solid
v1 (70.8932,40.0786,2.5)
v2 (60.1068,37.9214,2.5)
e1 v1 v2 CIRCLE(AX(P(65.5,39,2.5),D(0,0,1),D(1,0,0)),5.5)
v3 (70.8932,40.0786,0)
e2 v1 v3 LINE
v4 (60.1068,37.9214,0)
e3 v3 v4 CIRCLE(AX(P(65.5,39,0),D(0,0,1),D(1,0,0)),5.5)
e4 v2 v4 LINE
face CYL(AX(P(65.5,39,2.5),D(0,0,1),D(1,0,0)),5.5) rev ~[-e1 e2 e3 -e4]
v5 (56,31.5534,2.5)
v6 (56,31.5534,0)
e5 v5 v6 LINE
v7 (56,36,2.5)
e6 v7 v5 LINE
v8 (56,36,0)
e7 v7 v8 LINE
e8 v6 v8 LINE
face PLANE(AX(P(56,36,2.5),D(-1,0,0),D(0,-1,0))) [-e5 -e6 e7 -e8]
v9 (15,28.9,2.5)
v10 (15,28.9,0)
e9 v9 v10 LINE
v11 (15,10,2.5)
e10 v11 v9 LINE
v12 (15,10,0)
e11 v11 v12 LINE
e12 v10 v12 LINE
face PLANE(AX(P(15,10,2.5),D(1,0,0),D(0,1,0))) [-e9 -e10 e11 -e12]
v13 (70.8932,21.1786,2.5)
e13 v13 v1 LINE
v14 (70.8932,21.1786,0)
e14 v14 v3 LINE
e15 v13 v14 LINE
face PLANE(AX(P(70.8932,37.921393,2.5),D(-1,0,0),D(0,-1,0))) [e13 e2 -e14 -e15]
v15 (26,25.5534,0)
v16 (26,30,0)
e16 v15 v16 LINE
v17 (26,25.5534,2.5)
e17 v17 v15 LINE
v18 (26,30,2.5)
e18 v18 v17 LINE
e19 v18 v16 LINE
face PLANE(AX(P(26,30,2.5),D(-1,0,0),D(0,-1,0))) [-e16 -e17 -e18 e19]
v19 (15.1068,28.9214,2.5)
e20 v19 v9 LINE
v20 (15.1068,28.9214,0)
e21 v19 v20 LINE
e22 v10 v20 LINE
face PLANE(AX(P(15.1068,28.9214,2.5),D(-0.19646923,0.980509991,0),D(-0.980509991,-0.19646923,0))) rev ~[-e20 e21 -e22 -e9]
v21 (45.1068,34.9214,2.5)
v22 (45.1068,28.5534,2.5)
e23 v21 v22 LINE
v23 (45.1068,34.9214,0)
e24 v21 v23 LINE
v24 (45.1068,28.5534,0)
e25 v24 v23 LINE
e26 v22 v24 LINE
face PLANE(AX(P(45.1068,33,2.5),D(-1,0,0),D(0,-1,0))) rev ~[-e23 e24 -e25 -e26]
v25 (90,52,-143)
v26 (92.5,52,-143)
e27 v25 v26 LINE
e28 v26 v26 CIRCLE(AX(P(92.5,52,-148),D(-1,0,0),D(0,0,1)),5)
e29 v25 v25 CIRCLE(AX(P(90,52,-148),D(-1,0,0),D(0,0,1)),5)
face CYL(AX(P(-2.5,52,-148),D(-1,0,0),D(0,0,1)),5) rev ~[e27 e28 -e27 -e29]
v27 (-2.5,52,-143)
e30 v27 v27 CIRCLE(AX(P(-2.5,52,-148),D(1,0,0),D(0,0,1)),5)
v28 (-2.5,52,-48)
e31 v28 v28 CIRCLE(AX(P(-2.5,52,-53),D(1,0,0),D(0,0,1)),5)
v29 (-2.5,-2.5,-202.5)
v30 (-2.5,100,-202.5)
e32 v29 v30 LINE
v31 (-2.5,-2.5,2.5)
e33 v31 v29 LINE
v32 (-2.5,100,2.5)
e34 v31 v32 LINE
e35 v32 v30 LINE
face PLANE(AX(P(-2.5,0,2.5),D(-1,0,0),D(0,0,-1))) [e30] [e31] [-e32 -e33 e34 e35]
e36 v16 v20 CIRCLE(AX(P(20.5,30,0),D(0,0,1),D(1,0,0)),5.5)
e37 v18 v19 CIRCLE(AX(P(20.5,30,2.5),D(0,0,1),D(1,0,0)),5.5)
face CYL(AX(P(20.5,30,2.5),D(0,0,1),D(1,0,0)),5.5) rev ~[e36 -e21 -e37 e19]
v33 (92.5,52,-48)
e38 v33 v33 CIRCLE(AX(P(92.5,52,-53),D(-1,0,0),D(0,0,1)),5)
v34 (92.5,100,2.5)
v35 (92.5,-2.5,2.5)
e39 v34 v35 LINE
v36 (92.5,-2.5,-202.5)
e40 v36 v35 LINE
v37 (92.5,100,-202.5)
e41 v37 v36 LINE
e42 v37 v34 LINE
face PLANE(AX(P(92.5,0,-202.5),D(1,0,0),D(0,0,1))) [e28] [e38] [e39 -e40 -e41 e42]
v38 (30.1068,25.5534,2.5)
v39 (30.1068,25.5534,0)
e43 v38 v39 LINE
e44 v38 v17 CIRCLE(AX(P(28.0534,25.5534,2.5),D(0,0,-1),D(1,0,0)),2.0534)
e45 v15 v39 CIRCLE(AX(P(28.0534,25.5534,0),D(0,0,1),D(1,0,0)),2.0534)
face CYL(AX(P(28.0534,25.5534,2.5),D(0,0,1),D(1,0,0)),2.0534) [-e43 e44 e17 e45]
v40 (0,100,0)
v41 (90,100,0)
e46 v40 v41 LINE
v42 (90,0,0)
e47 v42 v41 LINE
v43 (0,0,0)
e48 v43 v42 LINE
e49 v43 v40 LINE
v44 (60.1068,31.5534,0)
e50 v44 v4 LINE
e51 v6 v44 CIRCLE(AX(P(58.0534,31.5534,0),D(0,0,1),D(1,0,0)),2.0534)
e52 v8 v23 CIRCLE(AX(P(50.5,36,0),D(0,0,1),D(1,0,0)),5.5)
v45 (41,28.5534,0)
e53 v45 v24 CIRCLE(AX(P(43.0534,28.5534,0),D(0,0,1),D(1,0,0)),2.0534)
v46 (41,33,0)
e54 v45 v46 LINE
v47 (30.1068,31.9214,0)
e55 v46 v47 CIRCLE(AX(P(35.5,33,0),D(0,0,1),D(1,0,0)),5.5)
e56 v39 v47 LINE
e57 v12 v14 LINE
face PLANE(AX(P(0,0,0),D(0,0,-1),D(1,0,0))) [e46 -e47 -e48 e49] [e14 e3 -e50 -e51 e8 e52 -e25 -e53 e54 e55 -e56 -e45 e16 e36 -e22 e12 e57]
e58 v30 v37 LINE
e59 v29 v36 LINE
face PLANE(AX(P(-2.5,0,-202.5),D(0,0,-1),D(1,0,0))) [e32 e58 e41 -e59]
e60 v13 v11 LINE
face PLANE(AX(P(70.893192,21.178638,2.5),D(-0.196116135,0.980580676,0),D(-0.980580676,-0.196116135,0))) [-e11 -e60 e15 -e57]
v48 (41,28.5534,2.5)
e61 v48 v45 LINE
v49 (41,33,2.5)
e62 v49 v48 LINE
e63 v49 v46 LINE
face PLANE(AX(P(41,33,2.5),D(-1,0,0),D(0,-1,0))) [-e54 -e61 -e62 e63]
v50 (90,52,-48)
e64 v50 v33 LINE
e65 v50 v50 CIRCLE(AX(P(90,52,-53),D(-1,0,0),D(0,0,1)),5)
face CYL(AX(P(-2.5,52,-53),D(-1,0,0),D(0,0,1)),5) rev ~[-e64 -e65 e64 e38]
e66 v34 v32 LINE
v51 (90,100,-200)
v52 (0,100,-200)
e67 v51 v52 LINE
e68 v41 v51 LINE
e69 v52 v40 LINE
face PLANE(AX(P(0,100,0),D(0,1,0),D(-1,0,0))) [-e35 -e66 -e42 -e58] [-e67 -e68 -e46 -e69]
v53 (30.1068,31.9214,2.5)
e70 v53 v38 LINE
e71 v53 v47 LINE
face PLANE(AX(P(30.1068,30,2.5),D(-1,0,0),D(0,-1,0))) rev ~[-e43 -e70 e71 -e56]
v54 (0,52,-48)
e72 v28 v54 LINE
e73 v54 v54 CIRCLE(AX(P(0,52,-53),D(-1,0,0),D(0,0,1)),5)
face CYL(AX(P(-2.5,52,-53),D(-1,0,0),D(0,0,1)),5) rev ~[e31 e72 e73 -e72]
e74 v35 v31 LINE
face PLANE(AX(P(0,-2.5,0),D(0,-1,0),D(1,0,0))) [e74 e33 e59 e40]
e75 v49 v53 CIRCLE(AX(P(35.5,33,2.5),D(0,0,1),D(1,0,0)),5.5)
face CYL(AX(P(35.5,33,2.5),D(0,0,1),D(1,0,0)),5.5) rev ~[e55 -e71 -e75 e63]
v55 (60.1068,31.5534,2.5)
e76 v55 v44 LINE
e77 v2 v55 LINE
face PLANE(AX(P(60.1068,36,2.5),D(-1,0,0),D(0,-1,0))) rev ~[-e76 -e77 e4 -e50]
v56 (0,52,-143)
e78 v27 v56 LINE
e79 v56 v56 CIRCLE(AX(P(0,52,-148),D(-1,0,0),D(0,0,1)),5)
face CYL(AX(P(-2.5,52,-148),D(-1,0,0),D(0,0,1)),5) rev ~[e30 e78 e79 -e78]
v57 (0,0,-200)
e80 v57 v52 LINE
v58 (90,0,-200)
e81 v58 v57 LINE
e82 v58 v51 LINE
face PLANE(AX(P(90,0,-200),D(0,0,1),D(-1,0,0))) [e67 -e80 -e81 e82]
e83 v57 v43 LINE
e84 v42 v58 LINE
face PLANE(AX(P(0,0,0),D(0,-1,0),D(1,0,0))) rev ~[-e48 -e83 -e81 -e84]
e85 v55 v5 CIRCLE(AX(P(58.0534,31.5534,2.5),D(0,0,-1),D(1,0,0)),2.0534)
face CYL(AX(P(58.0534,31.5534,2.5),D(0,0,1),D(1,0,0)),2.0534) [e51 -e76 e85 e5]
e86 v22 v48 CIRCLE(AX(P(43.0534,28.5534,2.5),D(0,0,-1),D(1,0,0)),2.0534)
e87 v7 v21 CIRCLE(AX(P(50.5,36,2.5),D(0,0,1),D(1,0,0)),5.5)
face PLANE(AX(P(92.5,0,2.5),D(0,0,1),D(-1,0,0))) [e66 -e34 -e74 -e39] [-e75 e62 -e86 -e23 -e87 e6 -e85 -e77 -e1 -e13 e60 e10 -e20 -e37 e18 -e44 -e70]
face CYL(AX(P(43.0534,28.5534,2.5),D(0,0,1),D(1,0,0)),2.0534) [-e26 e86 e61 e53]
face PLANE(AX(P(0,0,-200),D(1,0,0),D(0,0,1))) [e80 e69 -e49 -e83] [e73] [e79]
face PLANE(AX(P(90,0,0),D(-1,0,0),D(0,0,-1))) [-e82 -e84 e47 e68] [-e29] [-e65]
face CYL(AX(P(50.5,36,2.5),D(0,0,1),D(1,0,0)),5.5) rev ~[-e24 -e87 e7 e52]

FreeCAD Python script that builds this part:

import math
import FreeCAD as App
import Part
import Sketcher
from FreeCAD import Vector
Q = App.Units.Quantity

doc = App.newDocument("Part")
body = doc.addObject("PartDesign::Body", "Body")

# Sketch on XZ plane
sketch1 = doc.addObject("Sketcher::SketchObject", "Sketch")
body.addObject(sketch1)
sketch1.AttachmentSupport = (doc.XZ_Plane, [""])
sketch1.MapMode = "FlatFace"
sketch1.addGeometry(Part.LineSegment(Vector(92, -202, 0), Vector(-2, -202, 0)), False)
sketch1.addGeometry(Part.LineSegment(Vector(-2, -202, 0), Vector(-2, 2, 0)), False)
sketch1.addGeometry(Part.LineSegment(Vector(-2, 2, 0), Vector(92, 2, 0)), False)
sketch1.addGeometry(Part.LineSegment(Vector(92, 2, 0), Vector(92, -202, 0)), False)
sketch1.addGeometry(Part.LineSegment(Vector(90, 0, 0), Vector(0, 0, 0)), False)
sketch1.addGeometry(Part.LineSegment(Vector(0, 0, 0), Vector(0, -200, 0)), False)
sketch1.addGeometry(Part.LineSegment(Vector(0, -200, 0), Vector(90, -200, 0)), False)
sketch1.addGeometry(Part.LineSegment(Vector(90, -200, 0), Vector(90, 0, 0)), False)
sketch1.addConstraint(Sketcher.Constraint("Coincident", 0, 2, 1, 1))
sketch1.addConstraint(Sketcher.Constraint("Coincident", 1, 2, 2, 1))
sketch1.addConstraint(Sketcher.Constraint("Coincident", 2, 2, 3, 1))
sketch1.addConstraint(Sketcher.Constraint("Coincident", 3, 2, 0, 1))
sketch1.addConstraint(Sketcher.Constraint("Coincident", 4, 2, 5, 1))
sketch1.addConstraint(Sketcher.Constraint("Coincident", 5, 2, 6, 1))
sketch1.addConstraint(Sketcher.Constraint("Coincident", 6, 2, 7, 1))
sketch1.addConstraint(Sketcher.Constraint("Coincident", 7, 2, 4, 1))
sketch1.addConstraint(Sketcher.Constraint("Horizontal", 0))
sketch1.addConstraint(Sketcher.Constraint("Vertical", 1))
sketch1.addConstraint(Sketcher.Constraint("Horizontal", 2))
sketch1.addConstraint(Sketcher.Constraint("Vertical", 3))
sketch1.addConstraint(Sketcher.Constraint("Horizontal", 4))
sketch1.addConstraint(Sketcher.Constraint("Vertical", 5))
sketch1.addConstraint(Sketcher.Constraint("Horizontal", 6))
sketch1.addConstraint(Sketcher.Constraint("Vertical", 7))
sketch1.addConstraint(Sketcher.Constraint("Coincident", 4, 2, -1, 1))
sketch1.addConstraint(Sketcher.Constraint("DistanceX", 0, 2, 0, 1, Q("95 mm")))
sketch1.addConstraint(Sketcher.Constraint("DistanceX", 4, 2, 4, 1, Q("90 mm")))
sketch1.addConstraint(Sketcher.Constraint("DistanceY", 1, 1, 1, 2, Q("205 mm")))
sketch1.addConstraint(Sketcher.Constraint("DistanceY", 5, 2, 5, 1, Q("200 mm")))
sketch1.addConstraint(Sketcher.Constraint("DistanceX", 0, 2, -1, 1, Q("2.5 mm")))
sketch1.addConstraint(Sketcher.Constraint("DistanceY", 0, 2, -1, 1, Q("202.5 mm")))
pad1 = doc.addObject("PartDesign::Pad", "Pad")
body.addObject(pad1)
pad1.Profile = sketch1
pad1.Length = 100
pad1.Reversed = True

# Sketch on XZ plane
sketch2 = doc.addObject("Sketcher::SketchObject", "Sketch001")
body.addObject(sketch2)
sketch2.AttachmentSupport = (doc.XZ_Plane, [""])
sketch2.MapMode = "FlatFace"
sketch2.addGeometry(Part.LineSegment(Vector(92, -202, 0), Vector(92, 2, 0)), False)
sketch2.addGeometry(Part.LineSegment(Vector(92, 2, 0), Vector(-2, 2, 0)), False)
sketch2.addGeometry(Part.LineSegment(Vector(-2, 2, 0), Vector(-2, -202, 0)), False)
sketch2.addGeometry(Part.LineSegment(Vector(-2, -202, 0), Vector(92, -202, 0)), False)
sketch2.addConstraint(Sketcher.Constraint("Coincident", 0, 2, 1, 1))
sketch2.addConstraint(Sketcher.Constraint("Coincident", 1, 2, 2, 1))
sketch2.addConstraint(Sketcher.Constraint("Coincident", 2, 2, 3, 1))
sketch2.addConstraint(Sketcher.Constraint("Coincident", 3, 2, 0, 1))
sketch2.addConstraint(Sketcher.Constraint("Vertical", 0))
sketch2.addConstraint(Sketcher.Constraint("Horizontal", 1))
sketch2.addConstraint(Sketcher.Constraint("Vertical", 2))
sketch2.addConstraint(Sketcher.Constraint("Horizontal", 3))
sketch2.addConstraint(Sketcher.Constraint("DistanceX", 1, 2, 1, 1, Q("95 mm")))
sketch2.addConstraint(Sketcher.Constraint("DistanceY", 0, 1, 0, 2, Q("205 mm")))
sketch2.addConstraint(Sketcher.Constraint("DistanceX", -1, 1, 0, 2, Q("92.5 mm")))
sketch2.addConstraint(Sketcher.Constraint("DistanceY", -1, 1, 0, 2, Q("2.5 mm")))
pad2 = doc.addObject("PartDesign::Pad", "Pad001")
body.addObject(pad2)
pad2.Profile = sketch2
pad2.Length = 2.5

# Sketch on XY plane
sketch3 = doc.addObject("Sketcher::SketchObject", "Sketch002")
body.addObject(sketch3)
sketch3.AttachmentSupport = (doc.XY_Plane, [""])
sketch3.MapMode = "FlatFace"
sketch3.AttachmentOffset = App.Placement(Vector(0, 0, 2.5), App.Rotation())
sketch3.addGeometry(Part.LineSegment(Vector(15, 10, 0), Vector(70.89, 21.18, 0)), False)
sketch3.addGeometry(Part.LineSegment(Vector(70.89, 21.18, 0), Vector(70.89, 40.08, 0)), False)
sketch3.addGeometry(Part.ArcOfCircle(Part.Circle(Vector(65.5, 39, 0), Vector(0, 0, 1), 5.5), math.radians(11), math.radians(191)), False)
sketch3.addGeometry(Part.LineSegment(Vector(60.11, 37.92, 0), Vector(60.11, 31.55, 0)), False)
sketch3.addGeometry(Part.ArcOfCircle(Part.Circle(Vector(58.05, 31.55, 0), Vector(0, 0, 1), 2.05), math.radians(180), math.radians(360)), False)
sketch3.addGeometry(Part.LineSegment(Vector(56, 31.55, 0), Vector(56, 36, 0)), False)
sketch3.addGeometry(Part.ArcOfCircle(Part.Circle(Vector(50.5, 36, 0), Vector(0, 0, 1), 5.5), math.radians(0), math.radians(191)), False)
sketch3.addGeometry(Part.LineSegment(Vector(45.11, 34.92, 0), Vector(45.11, 28.55, 0)), False)
sketch3.addGeometry(Part.ArcOfCircle(Part.Circle(Vector(43.05, 28.55, 0), Vector(0, 0, 1), 2.05), math.radians(180), math.radians(360)), False)
sketch3.addGeometry(Part.LineSegment(Vector(41, 28.55, 0), Vector(41, 33, 0)), False)
sketch3.addGeometry(Part.ArcOfCircle(Part.Circle(Vector(35.5, 33, 0), Vector(0, 0, 1), 5.5), math.radians(0), math.radians(191)), False)
sketch3.addGeometry(Part.LineSegment(Vector(30.11, 31.92, 0), Vector(30.11, 25.55, 0)), False)
sketch3.addGeometry(Part.ArcOfCircle(Part.Circle(Vector(28.05, 25.55, 0), Vector(0, 0, 1), 2.05), math.radians(180), math.radians(360)), False)
sketch3.addGeometry(Part.LineSegment(Vector(26, 25.55, 0), Vector(26, 30, 0)), False)
sketch3.addGeometry(Part.ArcOfCircle(Part.Circle(Vector(20.5, 30, 0), Vector(0, 0, 1), 5.5), math.radians(0), math.radians(191)), False)
sketch3.addGeometry(Part.LineSegment(Vector(15.11, 28.92, 0), Vector(15, 28.9, 0)), False)
sketch3.addGeometry(Part.LineSegment(Vector(15, 28.9, 0), Vector(15, 10, 0)), False)
sketch3.addConstraint(Sketcher.Constraint("Coincident", 0, 2, 1, 1))
sketch3.addConstraint(Sketcher.Constraint("Coincident", 1, 2, 2, 1))
sketch3.addConstraint(Sketcher.Constraint("Coincident", 2, 2, 3, 1))
sketch3.addConstraint(Sketcher.Constraint("Tangent", 3, 2, 4, 2))
sketch3.addConstraint(Sketcher.Constraint("Tangent", 4, 1, 5, 1))
sketch3.addConstraint(Sketcher.Constraint("Tangent", 5, 2, 6, 1))
sketch3.addConstraint(Sketcher.Constraint("Coincident", 6, 2, 7, 1))
sketch3.addConstraint(Sketcher.Constraint("Tangent", 7, 2, 8, 2))
sketch3.addConstraint(Sketcher.Constraint("Tangent", 8, 1, 9, 1))
sketch3.addConstraint(Sketcher.Constraint("Tangent", 9, 2, 10, 1))
sketch3.addConstraint(Sketcher.Constraint("Coincident", 10, 2, 11, 1))
sketch3.addConstraint(Sketcher.Constraint("Tangent", 11, 2, 12, 2))
sketch3.addConstraint(Sketcher.Constraint("Tangent", 12, 1, 13, 1))
sketch3.addConstraint(Sketcher.Constraint("Tangent", 13, 2, 14, 1))
sketch3.addConstraint(Sketcher.Constraint("Coincident", 14, 2, 15, 1))
sketch3.addConstraint(Sketcher.Constraint("Coincident", 15, 2, 16, 1))
sketch3.addConstraint(Sketcher.Constraint("Coincident", 16, 2, 0, 1))
sketch3.addConstraint(Sketcher.Constraint("Vertical", 1))
sketch3.addConstraint(Sketcher.Constraint("Vertical", 3))
sketch3.addConstraint(Sketcher.Constraint("Vertical", 5))
sketch3.addConstraint(Sketcher.Constraint("Vertical", 7))
sketch3.addConstraint(Sketcher.Constraint("Vertical", 9))
sketch3.addConstraint(Sketcher.Constraint("Vertical", 11))
sketch3.addConstraint(Sketcher.Constraint("Vertical", 13))
sketch3.addConstraint(Sketcher.Constraint("Vertical", 16))
sketch3.addConstraint(Sketcher.Constraint("Equal", 2, 6))
sketch3.addConstraint(Sketcher.Constraint("Equal", 4, 8))
sketch3.addConstraint(Sketcher.Constraint("Equal", 6, 10))
sketch3.addConstraint(Sketcher.Constraint("Equal", 8, 12))
sketch3.addConstraint(Sketcher.Constraint("Equal", 10, 14))
sketch3.addConstraint(Sketcher.Constraint("Parallel", 0, 15))
sketch3.addConstraint(Sketcher.Constraint("Equal", 3, 7))
sketch3.addConstraint(Sketcher.Constraint("Equal", 5, 9))
sketch3.addConstraint(Sketcher.Constraint("Equal", 7, 11))
sketch3.addConstraint(Sketcher.Constraint("Equal", 9, 13))
sketch3.addConstraint(Sketcher.Constraint("Equal", 1, 16))
sketch3.addConstraint(Sketcher.Constraint("Radius", 2, Q("5.5 mm")))
sketch3.addConstraint(Sketcher.Constraint("DistanceX", -1, 1, 15, 2, Q("15 mm")))
sketch3.addConstraint(Sketcher.Constraint("DistanceY", -1, 1, 16, 2, Q("10 mm")))
sketch3.addConstraint(Sketcher.Constraint("DistanceX", 6, 3, 2, 3, Q("15 mm")))
sketch3.addConstraint(Sketcher.Constraint("DistanceX", 8, 3, 4, 3, Q("15 mm")))
sketch3.addConstraint(Sketcher.Constraint("DistanceX", 12, 3, 8, 3, Q("15 mm")))
sketch3.addConstraint(Sketcher.Constraint("DistanceX", 14, 2, 10, 2, Q("15 mm")))
sketch3.addConstraint(Sketcher.Constraint("DistanceX", 15, 2, 13, 2, Q("11 mm")))
sketch3.addConstraint(Sketcher.Constraint("Distance", 0, Q("57 mm")))
sketch3.addConstraint(Sketcher.Constraint("DistanceY", 1, 1, 1, 2, Q("18.9 mm")))
sketch3.addConstraint(Sketcher.Constraint("DistanceY", -1, 1, 6, 3, Q("36 mm")))
sketch3.addConstraint(Sketcher.Constraint("Angle", 0, Q("11.31 deg")))
sketch3.addConstraint(Sketcher.Constraint("DistanceY", 3, 2, 3, 1, Q("6.368 mm")))
pocket1 = doc.addObject("PartDesign::Pocket", "Pocket")
body.addObject(pocket1)
pocket1.Profile = sketch3
pocket1.Length = 15

# Sketch on YZ plane
sketch4 = doc.addObject("Sketcher::SketchObject", "Sketch003")
body.addObject(sketch4)
sketch4.AttachmentSupport = (doc.YZ_Plane, [""])
sketch4.MapMode = "FlatFace"
sketch4.AttachmentOffset = App.Placement(Vector(0, 0, -2.5), App.Rotation())
sketch4.addGeometry(Part.Circle(Vector(52, -148, 0), Vector(0, 0, 1), 5), False)
sketch4.addGeometry(Part.Circle(Vector(52, -53, 0), Vector(0, 0, 1), 5), False)
sketch4.addConstraint(Sketcher.Constraint("Equal", 0, 1))
sketch4.addConstraint(Sketcher.Constraint("Vertical", 0, 3, 1, 3))
sketch4.addConstraint(Sketcher.Constraint("Diameter", 0, Q("10 mm")))
sketch4.addConstraint(Sketcher.Constraint("DistanceX", -1, 1, 0, 3, Q("52 mm")))
sketch4.addConstraint(Sketcher.Constraint("DistanceY", 0, 3, 1, 3, Q("95 mm")))
sketch4.addConstraint(Sketcher.Constraint("DistanceY", 0, 3, -1, 1, Q("148 mm")))
pocket2 = doc.addObject("PartDesign::Pocket", "Pocket001")
body.addObject(pocket2)
pocket2.Profile = sketch4
pocket2.Type = "ThroughAll"
pocket2.Reversed = True

doc.recompute()
